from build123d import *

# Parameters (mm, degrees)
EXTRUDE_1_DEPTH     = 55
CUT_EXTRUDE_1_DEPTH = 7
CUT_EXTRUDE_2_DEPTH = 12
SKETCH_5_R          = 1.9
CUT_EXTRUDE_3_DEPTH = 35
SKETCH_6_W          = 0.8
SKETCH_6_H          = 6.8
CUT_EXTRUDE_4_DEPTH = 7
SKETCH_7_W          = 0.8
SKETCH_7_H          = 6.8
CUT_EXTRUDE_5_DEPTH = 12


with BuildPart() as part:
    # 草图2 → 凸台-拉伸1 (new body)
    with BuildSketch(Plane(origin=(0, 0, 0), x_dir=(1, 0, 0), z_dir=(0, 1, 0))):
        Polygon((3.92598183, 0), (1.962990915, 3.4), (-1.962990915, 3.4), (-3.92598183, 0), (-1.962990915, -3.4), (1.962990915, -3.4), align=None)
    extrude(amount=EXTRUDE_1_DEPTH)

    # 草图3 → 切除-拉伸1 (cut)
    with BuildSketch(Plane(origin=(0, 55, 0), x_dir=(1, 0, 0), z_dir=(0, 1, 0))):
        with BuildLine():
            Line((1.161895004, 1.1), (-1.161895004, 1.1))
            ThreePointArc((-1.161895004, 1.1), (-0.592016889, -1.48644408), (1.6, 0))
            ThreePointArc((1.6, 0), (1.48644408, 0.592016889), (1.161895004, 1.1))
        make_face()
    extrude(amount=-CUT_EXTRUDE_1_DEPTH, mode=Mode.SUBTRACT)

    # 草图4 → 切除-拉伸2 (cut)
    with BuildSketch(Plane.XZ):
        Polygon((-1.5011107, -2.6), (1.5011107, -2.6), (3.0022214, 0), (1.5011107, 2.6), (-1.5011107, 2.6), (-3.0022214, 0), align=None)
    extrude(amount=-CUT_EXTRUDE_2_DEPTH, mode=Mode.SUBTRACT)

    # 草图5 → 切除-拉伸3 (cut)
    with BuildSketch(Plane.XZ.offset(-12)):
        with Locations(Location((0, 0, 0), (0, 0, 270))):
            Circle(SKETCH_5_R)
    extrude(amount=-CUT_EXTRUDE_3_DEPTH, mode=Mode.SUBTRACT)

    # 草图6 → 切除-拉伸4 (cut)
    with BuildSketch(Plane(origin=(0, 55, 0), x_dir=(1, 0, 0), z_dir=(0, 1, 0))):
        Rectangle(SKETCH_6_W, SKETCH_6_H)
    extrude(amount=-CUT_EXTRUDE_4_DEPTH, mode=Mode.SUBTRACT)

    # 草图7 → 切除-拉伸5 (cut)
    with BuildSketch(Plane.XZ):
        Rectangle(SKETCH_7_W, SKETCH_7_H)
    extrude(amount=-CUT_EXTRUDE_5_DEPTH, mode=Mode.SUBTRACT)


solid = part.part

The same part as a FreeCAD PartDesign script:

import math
import FreeCAD as App
import Part
import Sketcher

V = App.Vector
Q = App.Units.Quantity

doc = App.newDocument("Part")
body = doc.addObject("PartDesign::Body", "Body")

# Sketch on XZ plane
sketch1 = doc.addObject("Sketcher::SketchObject", "Sketch")
body.addObject(sketch1)
sketch1.AttachmentSupport = (doc.XZ_Plane, [""])
sketch1.MapMode = "FlatFace"
sketch1.addGeometry([
    Part.LineSegment(V(3.9, 0, 0), V(2, -3.4, 0)),  # 0
    Part.LineSegment(V(2, -3.4, 0), V(-2, -3.4, 0)),  # 1
    Part.LineSegment(V(-2, -3.4, 0), V(-3.9, 0, 0)),  # 2
    Part.LineSegment(V(-3.9, 0, 0), V(-2, 3.4, 0)),  # 3
    Part.LineSegment(V(-2, 3.4, 0), V(2, 3.4, 0)),  # 4
    Part.LineSegment(V(2, 3.4, 0), V(3.9, 0, 0)),  # 5
], False)
sketch1.addConstraint([
    Sketcher.Constraint("Coincident", 0, 2, 1, 1),
    Sketcher.Constraint("Coincident", 1, 2, 2, 1),
    Sketcher.Constraint("Coincident", 2, 2, 3, 1),
    Sketcher.Constraint("Coincident", 3, 2, 4, 1),
    Sketcher.Constraint("Coincident", 4, 2, 5, 1),
    Sketcher.Constraint("Coincident", 5, 2, 0, 1),
    Sketcher.Constraint("Horizontal", 1),
    Sketcher.Constraint("Horizontal", 4),
    Sketcher.Constraint("Symmetric", 0, 2, 3, 2, -1, 1),
    Sketcher.Constraint("Symmetric", 2, 2, 5, 2, -1, 1),
    Sketcher.Constraint("PointOnObject", 2, 2, -1),
    Sketcher.Constraint("Parallel", 2, 5),
    Sketcher.Constraint("Vertical", 1, 2, 3, 2),
    Sketcher.Constraint("Angle", 0, Q("-120 deg")),
    Sketcher.Constraint("DistanceY", 0, 2, -1, 1, 3.4),
    Sketcher.Constraint("DistanceX", 1, 2, 1, 1, 3.925982),
])
pad1 = doc.addObject("PartDesign::Pad", "Pad")
body.addObject(pad1)
pad1.Profile = sketch1
pad1.Length = 55
pad1.Reversed = True

# Sketch on XZ plane
sketch2 = doc.addObject("Sketcher::SketchObject", "Sketch001")
body.addObject(sketch2)
sketch2.AttachmentSupport = (doc.XZ_Plane, [""])
sketch2.MapMode = "FlatFace"
sketch2.AttachmentOffset = App.Placement(V(0, 0, -55), App.Rotation())
sketch2.addGeometry([
    Part.LineSegment(V(1.2, -1.1, 0), V(-1.2, -1.1, 0)),
    Part.ArcOfCircle(Part.Circle(V(0, 0, 0), V(0, 0, 1), 1.6), math.radians(0), math.radians(223)),
    Part.ArcOfCircle(Part.Circle(V(0, 0, 0), V(0, 0, 1), 1.6), math.radians(-43), math.radians(0)),
], False)
sketch2.addConstraint([
    Sketcher.Constraint("Coincident", 0, 2, 1, 2),
    Sketcher.Constraint("Tangent", 1, 1, 2, 2),
    Sketcher.Constraint("Coincident", 2, 1, 0, 1),
    Sketcher.Constraint("Horizontal", 0),
    Sketcher.Constraint("Coincident", 1, 3, -1, 1),
    Sketcher.Constraint("Equal", 1, 2),
    Sketcher.Constraint("PointOnObject", 1, 1, -1),
    Sketcher.Constraint("Radius", 1, 1.6),
    Sketcher.Constraint("DistanceY", 0, 2, -1, 1, 1.1),
])
pocket1 = doc.addObject("PartDesign::Pocket", "Pocket")
body.addObject(pocket1)
pocket1.Profile = sketch2
pocket1.Length = 7
pocket1.Reversed = True

# Sketch on XZ plane
sketch3 = doc.addObject("Sketcher::SketchObject", "Sketch002")
body.addObject(sketch3)
sketch3.AttachmentSupport = (doc.XZ_Plane, [""])
sketch3.MapMode = "FlatFace"
sketch3.addGeometry([
    Part.LineSegment(V(-1.5, -2.6, 0), V(1.5, -2.6, 0)),  # 0
    Part.LineSegment(V(1.5, -2.6, 0), V(3, 0, 0)),  # 1
    Part.LineSegment(V(3, 0, 0), V(1.5, 2.6, 0)),  # 2
    Part.LineSegment(V(1.5, 2.6, 0), V(-1.5, 2.6, 0)),  # 3
    Part.LineSegment(V(-1.5, 2.6, 0), V(-3, 0, 0)),  # 4
    Part.LineSegment(V(-3, 0, 0), V(-1.5, -2.6, 0)),  # 5
], False)
sketch3.addConstraint([
    Sketcher.Constraint("Coincident", 0, 2, 1, 1),
    Sketcher.Constraint("Coincident", 1, 2, 2, 1),
    Sketcher.Constraint("Coincident", 2, 2, 3, 1),
    Sketcher.Constraint("Coincident", 3, 2, 4, 1),
    Sketcher.Constraint("Coincident", 4, 2, 5, 1),
    Sketcher.Constraint("Coincident", 5, 2, 0, 1),
    Sketcher.Constraint("Horizontal", 0),
    Sketcher.Constraint("Horizontal", 3),
    Sketcher.Constraint("Symmetric", 0, 2, 3, 2, -1, 1),
    Sketcher.Constraint("Symmetric", 1, 2, 4, 2, -1, 1),
    Sketcher.Constraint("PointOnObject", 1, 2, -1),
    Sketcher.Constraint("Parallel", 2, 5),
    Sketcher.Constraint("Vertical", 0, 2, 2, 2),
    Sketcher.Constraint("Angle", 1, Q("60 deg")),
    Sketcher.Constraint("DistanceY", 0, 2, -1, 1, 2.6),
    Sketcher.Constraint("DistanceX", 0, 1, 0, 2, 3.002221),
])
pocket2 = doc.addObject("PartDesign::Pocket", "Pocket001")
body.addObject(pocket2)
pocket2.Profile = sketch3
pocket2.Length = 12

# Sketch on XZ plane
sketch4 = doc.addObject("Sketcher::SketchObject", "Sketch003")
body.addObject(sketch4)
sketch4.AttachmentSupport = (doc.XZ_Plane, [""])
sketch4.MapMode = "FlatFace"
sketch4.AttachmentOffset = App.Placement(V(0, 0, -12), App.Rotation())
sketch4.addGeometry(Part.Circle(V(0, 0, 0), V(0, 0, 1), 1.9), False)
sketch4.addConstraint([
    Sketcher.Constraint("Coincident", 0, 3, -1, 1),
    Sketcher.Constraint("Diameter", 0, 3.8),
])
pocket3 = doc.addObject("PartDesign::Pocket", "Pocket002")
body.addObject(pocket3)
pocket3.Profile = sketch4
pocket3.Length = 35

# Sketch on XZ plane
sketch5 = doc.addObject("Sketcher::SketchObject", "Sketch004")
body.addObject(sketch5)
sketch5.AttachmentSupport = (doc.XZ_Plane, [""])
sketch5.MapMode = "FlatFace"
sketch5.AttachmentOffset = App.Placement(V(0, 0, -55), App.Rotation())
sketch5.addGeometry([
    Part.LineSegment(V(-0.4, -3.4, 0), V(-0.4, 3.4, 0)),
    Part.LineSegment(V(-0.4, 3.4, 0), V(0.4, 3.4, 0)),
    Part.LineSegment(V(0.4, 3.4, 0), V(0.4, -3.4, 0)),
    Part.LineSegment(V(0.4, -3.4, 0), V(-0.4, -3.4, 0)),
], False)
sketch5.addConstraint([
    Sketcher.Constraint("Coincident", 0, 2, 1, 1),
    Sketcher.Constraint("Coincident", 1, 2, 2, 1),
    Sketcher.Constraint("Coincident", 2, 2, 3, 1),
    Sketcher.Constraint("Coincident", 3, 2, 0, 1),
    Sketcher.Constraint("Vertical", 0),
    Sketcher.Constraint("Horizontal", 1),
    Sketcher.Constraint("Vertical", 2),
    Sketcher.Constraint("Horizontal", 3),
    Sketcher.Constraint("Symmetric", 0, 2, 2, 2, -1, 1),
    Sketcher.Constraint("DistanceX", 1, 1, 1, 2, 0.8),
    Sketcher.Constraint("DistanceY", 0, 1, 0, 2, 6.8),
])
pocket4 = doc.addObject("PartDesign::Pocket", "Pocket003")
body.addObject(pocket4)
pocket4.Profile = sketch5
pocket4.Length = 7
pocket4.Reversed = True

# Sketch on XZ plane
sketch6 = doc.addObject("Sketcher::SketchObject", "Sketch005")
body.addObject(sketch6)
sketch6.AttachmentSupport = (doc.XZ_Plane, [""])
sketch6.MapMode = "FlatFace"
sketch6.addGeometry([
    Part.LineSegment(V(-0.4, 3.4, 0), V(-0.4, -3.4, 0)),
    Part.LineSegment(V(-0.4, -3.4, 0), V(0.4, -3.4, 0)),
    Part.LineSegment(V(0.4, -3.4, 0), V(0.4, 3.4, 0)),
    Part.LineSegment(V(0.4, 3.4, 0), V(-0.4, 3.4, 0)),
], False)
sketch6.addConstraint([
    Sketcher.Constraint("Coincident", 0, 2, 1, 1),
    Sketcher.Constraint("Coincident", 1, 2, 2, 1),
    Sketcher.Constraint("Coincident", 2, 2, 3, 1),
    Sketcher.Constraint("Coincident", 3, 2, 0, 1),
    Sketcher.Constraint("Vertical", 0),
    Sketcher.Constraint("Horizontal", 1),
    Sketcher.Constraint("Vertical", 2),
    Sketcher.Constraint("Horizontal", 3),
    Sketcher.Constraint("Symmetric", 0, 2, 2, 2, -1, 1),
    Sketcher.Constraint("DistanceX", 1, 1, 1, 2, 0.8),
    Sketcher.Constraint("DistanceY", 0, 2, 0, 1, 6.8),
])
pocket5 = doc.addObject("PartDesign::Pocket", "Pocket004")
body.addObject(pocket5)
pocket5.Profile = sketch6
pocket5.Length = 12

doc.recompute()
